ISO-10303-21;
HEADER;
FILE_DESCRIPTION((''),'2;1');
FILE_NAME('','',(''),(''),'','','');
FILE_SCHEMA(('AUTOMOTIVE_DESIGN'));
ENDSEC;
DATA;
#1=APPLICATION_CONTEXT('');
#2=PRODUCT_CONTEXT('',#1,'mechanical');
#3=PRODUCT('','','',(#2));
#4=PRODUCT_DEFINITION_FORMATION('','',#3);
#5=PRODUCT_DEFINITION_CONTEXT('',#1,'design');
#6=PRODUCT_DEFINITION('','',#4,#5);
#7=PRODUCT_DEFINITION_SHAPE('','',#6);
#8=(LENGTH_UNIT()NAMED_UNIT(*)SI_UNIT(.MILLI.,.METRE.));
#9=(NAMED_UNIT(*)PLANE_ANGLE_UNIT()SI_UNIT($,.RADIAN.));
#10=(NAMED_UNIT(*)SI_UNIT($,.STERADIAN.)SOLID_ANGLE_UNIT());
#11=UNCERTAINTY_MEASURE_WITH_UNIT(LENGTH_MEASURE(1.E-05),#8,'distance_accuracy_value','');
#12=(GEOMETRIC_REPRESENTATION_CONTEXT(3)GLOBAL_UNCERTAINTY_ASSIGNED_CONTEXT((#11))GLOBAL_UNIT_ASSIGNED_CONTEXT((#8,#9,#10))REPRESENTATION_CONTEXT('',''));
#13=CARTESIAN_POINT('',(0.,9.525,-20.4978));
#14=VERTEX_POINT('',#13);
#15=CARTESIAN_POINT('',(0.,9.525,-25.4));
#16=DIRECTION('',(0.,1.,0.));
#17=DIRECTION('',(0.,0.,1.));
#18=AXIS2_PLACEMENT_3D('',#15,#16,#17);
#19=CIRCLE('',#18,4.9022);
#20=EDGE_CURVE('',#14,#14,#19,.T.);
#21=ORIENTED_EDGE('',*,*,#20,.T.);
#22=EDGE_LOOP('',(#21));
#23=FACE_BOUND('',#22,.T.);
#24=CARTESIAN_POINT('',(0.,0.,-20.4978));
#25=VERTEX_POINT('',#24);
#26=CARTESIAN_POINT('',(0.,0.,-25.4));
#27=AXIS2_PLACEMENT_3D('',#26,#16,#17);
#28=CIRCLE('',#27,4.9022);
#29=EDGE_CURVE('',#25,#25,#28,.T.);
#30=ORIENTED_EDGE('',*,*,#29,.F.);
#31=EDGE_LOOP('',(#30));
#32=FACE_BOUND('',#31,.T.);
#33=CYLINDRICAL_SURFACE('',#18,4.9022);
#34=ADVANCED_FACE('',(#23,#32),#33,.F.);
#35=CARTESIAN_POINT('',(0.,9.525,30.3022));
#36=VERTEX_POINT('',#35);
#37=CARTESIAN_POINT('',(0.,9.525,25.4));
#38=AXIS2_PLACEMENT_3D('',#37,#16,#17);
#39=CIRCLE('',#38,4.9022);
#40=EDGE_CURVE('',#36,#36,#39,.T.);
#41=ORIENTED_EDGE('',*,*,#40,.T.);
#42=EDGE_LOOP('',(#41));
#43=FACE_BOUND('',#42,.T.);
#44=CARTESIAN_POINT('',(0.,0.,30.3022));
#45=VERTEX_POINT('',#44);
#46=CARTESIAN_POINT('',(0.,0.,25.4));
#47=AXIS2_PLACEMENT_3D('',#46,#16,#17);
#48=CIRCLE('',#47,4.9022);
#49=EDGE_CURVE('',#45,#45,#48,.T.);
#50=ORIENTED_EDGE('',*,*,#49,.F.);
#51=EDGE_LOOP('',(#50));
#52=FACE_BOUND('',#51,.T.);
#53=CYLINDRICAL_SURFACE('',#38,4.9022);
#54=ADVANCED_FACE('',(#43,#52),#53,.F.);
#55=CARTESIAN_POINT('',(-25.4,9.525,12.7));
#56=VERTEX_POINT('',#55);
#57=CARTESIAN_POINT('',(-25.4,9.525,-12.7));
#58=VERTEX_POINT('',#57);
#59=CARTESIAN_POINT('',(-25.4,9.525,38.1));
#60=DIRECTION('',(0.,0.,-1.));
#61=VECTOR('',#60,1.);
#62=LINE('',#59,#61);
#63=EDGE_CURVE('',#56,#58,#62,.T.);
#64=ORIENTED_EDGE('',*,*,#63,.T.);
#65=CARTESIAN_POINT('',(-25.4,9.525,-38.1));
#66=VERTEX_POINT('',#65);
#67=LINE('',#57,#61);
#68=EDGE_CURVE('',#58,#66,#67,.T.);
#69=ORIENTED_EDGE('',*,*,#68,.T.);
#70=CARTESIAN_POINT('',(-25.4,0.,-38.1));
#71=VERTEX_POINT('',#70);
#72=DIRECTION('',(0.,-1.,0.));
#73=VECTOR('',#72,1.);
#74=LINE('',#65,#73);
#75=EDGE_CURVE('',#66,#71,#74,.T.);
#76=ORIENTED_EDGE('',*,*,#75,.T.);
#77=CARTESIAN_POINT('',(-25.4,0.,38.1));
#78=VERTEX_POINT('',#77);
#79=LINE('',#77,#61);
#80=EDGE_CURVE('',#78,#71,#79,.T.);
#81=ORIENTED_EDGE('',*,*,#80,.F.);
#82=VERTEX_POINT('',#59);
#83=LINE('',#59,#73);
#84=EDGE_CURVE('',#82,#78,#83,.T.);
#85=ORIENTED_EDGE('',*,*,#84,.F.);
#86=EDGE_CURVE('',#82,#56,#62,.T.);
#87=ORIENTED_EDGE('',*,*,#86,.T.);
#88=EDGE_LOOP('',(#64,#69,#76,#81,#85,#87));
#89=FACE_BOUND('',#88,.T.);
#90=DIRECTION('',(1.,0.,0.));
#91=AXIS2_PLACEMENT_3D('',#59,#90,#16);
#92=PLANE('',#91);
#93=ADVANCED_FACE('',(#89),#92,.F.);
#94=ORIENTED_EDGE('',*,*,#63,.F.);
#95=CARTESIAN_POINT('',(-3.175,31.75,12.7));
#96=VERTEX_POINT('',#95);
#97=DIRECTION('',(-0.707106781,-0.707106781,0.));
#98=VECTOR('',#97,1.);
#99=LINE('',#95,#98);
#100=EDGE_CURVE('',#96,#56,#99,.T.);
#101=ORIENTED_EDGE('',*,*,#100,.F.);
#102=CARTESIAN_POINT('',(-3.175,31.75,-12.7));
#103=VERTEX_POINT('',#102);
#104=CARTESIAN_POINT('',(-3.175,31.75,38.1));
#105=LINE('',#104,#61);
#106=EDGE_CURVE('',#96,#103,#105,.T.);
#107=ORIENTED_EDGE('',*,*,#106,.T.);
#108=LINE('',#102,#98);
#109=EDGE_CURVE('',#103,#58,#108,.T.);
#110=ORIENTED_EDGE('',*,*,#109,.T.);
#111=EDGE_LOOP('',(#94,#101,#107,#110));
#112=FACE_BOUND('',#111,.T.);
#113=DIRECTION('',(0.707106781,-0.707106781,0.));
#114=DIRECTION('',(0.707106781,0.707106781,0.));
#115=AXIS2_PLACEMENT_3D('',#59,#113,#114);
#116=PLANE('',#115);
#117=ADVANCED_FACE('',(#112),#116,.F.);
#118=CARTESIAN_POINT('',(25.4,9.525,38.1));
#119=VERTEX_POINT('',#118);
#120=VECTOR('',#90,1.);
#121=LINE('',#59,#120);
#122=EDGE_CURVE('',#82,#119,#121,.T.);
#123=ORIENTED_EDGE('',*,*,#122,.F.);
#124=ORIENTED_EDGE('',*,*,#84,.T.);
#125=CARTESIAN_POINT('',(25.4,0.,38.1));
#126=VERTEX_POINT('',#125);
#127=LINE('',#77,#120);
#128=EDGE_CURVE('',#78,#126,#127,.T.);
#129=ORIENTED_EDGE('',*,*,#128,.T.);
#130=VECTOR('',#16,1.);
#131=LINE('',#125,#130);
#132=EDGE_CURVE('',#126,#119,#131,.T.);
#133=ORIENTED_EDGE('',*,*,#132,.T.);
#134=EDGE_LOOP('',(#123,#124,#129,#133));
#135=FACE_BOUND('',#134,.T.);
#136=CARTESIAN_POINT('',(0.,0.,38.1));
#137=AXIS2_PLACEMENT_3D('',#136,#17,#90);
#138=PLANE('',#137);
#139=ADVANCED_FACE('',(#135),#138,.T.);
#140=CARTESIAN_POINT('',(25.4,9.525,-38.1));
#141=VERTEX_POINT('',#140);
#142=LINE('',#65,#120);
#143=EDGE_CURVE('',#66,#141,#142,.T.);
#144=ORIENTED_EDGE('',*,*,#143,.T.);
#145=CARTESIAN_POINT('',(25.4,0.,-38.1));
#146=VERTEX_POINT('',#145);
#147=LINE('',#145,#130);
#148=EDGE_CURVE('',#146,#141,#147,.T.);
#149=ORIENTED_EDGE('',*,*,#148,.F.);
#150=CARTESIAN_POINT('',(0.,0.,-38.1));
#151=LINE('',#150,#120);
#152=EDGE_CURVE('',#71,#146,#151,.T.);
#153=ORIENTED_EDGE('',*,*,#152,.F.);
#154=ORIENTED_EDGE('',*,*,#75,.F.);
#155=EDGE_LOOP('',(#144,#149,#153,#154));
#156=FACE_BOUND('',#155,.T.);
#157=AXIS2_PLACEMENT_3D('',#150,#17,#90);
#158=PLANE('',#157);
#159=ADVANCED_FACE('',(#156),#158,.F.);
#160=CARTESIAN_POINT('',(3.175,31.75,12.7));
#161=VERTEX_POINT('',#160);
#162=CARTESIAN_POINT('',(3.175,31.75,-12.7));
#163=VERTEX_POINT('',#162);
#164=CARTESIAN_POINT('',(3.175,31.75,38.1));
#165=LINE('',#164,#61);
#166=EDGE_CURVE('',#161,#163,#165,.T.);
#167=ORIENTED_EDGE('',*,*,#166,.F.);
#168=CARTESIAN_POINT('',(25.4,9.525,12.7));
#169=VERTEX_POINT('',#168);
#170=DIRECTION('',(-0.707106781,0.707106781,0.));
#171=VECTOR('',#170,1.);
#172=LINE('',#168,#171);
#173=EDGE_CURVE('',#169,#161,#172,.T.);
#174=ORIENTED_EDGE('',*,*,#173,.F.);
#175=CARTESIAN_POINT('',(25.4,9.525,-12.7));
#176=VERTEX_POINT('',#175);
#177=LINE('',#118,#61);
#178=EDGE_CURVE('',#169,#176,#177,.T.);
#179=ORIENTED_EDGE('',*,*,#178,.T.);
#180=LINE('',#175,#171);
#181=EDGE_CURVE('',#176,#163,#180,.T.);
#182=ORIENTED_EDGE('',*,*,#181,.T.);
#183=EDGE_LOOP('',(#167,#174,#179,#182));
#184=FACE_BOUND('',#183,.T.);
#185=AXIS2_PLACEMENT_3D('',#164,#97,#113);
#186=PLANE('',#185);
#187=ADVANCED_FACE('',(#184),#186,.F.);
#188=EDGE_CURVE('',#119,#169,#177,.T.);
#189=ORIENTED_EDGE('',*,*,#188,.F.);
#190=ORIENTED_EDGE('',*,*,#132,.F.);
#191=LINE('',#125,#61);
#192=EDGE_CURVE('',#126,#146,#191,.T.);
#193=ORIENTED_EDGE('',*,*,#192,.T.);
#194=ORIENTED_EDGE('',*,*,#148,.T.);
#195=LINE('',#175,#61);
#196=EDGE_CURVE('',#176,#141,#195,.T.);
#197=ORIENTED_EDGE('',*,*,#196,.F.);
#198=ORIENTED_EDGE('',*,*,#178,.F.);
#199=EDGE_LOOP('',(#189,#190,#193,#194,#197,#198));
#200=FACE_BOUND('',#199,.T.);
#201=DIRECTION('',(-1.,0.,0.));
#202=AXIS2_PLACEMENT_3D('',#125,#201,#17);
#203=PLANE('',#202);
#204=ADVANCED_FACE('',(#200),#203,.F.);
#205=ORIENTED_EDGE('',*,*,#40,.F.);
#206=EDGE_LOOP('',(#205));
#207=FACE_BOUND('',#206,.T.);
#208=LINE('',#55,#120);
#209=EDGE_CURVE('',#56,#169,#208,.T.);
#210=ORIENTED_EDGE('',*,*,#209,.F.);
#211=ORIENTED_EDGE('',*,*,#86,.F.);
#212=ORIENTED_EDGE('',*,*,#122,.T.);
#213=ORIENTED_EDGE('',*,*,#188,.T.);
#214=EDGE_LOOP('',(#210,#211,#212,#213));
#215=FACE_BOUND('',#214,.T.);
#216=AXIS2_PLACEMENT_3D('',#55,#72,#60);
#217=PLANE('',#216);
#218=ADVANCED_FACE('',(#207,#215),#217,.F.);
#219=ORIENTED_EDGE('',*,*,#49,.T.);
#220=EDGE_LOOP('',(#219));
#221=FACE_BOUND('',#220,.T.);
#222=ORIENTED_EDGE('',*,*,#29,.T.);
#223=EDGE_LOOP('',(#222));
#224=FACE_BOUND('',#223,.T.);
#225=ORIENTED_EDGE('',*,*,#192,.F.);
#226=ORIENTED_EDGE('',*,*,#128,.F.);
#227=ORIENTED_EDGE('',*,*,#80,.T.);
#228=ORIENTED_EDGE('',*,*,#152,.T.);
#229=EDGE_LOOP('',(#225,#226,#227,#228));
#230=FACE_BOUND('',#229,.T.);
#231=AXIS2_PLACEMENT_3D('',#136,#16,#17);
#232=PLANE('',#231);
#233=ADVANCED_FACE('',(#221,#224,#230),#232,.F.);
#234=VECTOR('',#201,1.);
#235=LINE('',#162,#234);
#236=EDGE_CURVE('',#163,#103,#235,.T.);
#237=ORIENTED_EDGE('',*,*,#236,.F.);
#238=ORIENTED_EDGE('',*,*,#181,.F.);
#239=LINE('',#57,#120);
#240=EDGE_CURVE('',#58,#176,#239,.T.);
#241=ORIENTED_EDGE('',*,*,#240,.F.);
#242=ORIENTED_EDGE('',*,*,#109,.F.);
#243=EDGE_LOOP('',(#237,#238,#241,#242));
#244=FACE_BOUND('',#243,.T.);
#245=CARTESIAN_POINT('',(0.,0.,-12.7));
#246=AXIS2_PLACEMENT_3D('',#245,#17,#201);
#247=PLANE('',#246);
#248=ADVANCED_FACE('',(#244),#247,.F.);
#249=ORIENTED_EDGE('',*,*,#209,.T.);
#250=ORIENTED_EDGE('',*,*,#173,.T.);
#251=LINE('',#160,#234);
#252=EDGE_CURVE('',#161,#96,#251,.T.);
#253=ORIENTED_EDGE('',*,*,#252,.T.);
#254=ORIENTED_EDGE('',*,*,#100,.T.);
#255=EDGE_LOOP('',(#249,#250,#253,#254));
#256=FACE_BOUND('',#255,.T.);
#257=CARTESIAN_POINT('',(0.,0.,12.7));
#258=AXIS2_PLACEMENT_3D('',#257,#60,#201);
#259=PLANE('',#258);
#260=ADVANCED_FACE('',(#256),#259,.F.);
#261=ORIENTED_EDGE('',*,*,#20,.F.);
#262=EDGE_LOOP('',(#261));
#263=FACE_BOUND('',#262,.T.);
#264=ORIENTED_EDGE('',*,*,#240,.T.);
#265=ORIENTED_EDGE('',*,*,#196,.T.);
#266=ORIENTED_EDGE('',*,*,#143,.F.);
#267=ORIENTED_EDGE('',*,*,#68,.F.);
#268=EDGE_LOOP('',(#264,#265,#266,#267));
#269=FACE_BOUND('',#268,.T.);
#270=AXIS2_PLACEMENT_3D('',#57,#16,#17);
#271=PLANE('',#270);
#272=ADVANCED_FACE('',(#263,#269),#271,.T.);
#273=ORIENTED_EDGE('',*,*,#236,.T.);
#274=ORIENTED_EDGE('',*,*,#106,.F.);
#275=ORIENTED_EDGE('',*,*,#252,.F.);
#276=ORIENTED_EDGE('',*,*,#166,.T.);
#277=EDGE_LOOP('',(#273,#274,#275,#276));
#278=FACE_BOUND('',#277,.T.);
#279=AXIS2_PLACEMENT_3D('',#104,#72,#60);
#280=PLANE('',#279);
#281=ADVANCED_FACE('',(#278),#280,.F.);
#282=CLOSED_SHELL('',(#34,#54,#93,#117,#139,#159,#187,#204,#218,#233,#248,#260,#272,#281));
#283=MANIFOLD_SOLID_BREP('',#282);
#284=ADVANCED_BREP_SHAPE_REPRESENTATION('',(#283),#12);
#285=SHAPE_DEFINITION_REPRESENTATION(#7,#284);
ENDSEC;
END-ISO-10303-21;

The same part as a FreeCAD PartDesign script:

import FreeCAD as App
import Part
import Sketcher

V = App.Vector
Q = App.Units.Quantity


def add_polygon(sketch, points):
    """Adds a closed chain of lines whose ends are joined by coincident constraints."""
    first, n = sketch.GeometryCount, len(points)
    for a, b in zip(points, points[1:] + points[:1]):
        sketch.addGeometry(Part.LineSegment(App.Vector(*a, 0), App.Vector(*b, 0)), False)
    for i in range(n):
        sketch.addConstraint(Sketcher.Constraint("Coincident", first + i, 2, first + (i + 1) % n, 1))

doc = App.newDocument("Part")
body = doc.addObject("PartDesign::Body", "Body")

# Sketch on XY plane
sketch1 = body.newObject("Sketcher::SketchObject", "Sketch")
sketch1.AttachmentSupport = (doc.getObject("XY_Plane"), [""])
sketch1.MapMode = "FlatFace"
add_polygon(sketch1, [(25, 0), (25, 10), (3, 32), (-3, 32), (-25, 10), (-25, 0)])  # lines 0-5
sketch1.addConstraint([
    Sketcher.Constraint("Vertical", 0),
    Sketcher.Constraint("Horizontal", 2),
    Sketcher.Constraint("Vertical", 4),
    Sketcher.Constraint("Horizontal", 5),
    Sketcher.Constraint("Symmetric", 4, 2, 5, 2, -1, 1),
    Sketcher.Constraint("Perpendicular", 1, 3),
    Sketcher.Constraint("Horizontal", 0, 2, 3, 2),
    Sketcher.Constraint("Equal", 1, 3),
    Sketcher.Constraint("DistanceX", 5, 1, 5, 2, Q("2 in")),
    Sketcher.Constraint("DistanceX", 2, 2, 2, 1, Q("0.25 in")),
    Sketcher.Constraint("DistanceY", 0, 1, 0, 2, Q("0.375 in")),
])
pad1 = body.newObject("PartDesign::Pad", "Pad")
pad1.Profile = sketch1
pad1.Length = Q("3 in")
pad1.Midplane = True

# Sketch on XY plane
sketch2 = body.newObject("Sketcher::SketchObject", "Sketch001")
sketch2.AttachmentSupport = (doc.getObject("XY_Plane"), [""])
sketch2.MapMode = "FlatFace"
sketch2.AttachmentOffset = App.Placement(V(0, 0, 1.5 * 25.4), App.Rotation())
add_polygon(sketch2, [(-25, 10), (25, 10), (3, 32), (-3, 32)])  # lines 0-3
sketch2.addConstraint([
    Sketcher.Constraint("Horizontal", 0),
    Sketcher.Constraint("Horizontal", 2),
    Sketcher.Constraint("Perpendicular", 1, 3),
    Sketcher.Constraint("Equal", 1, 3),
    Sketcher.Constraint("DistanceX", 0, 1, 0, 2, Q("2 in")),
    Sketcher.Constraint("DistanceX", -1, 1, 0, 2, Q("1 in")),
    Sketcher.Constraint("DistanceX", 2, 2, 2, 1, Q("0.25 in")),
    Sketcher.Constraint("DistanceY", -1, 1, 1, 2, Q("1.25 in")),
])
pocket1 = body.newObject("PartDesign::Pocket", "Pocket")
pocket1.Profile = sketch2
pocket1.Length = Q("1 in")

# Sketch on XZ plane
sketch3 = body.newObject("Sketcher::SketchObject", "Sketch002")
sketch3.AttachmentSupport = (doc.getObject("XZ_Plane"), [""])
sketch3.MapMode = "FlatFace"
sketch3.AttachmentOffset = App.Placement(V(0, 0, -0.375 * 25.4), App.Rotation())
sketch3.addGeometry(Part.Circle(V(0, 25.4, 0), V(0, 0, 1), 4.9), False)
sketch3.addConstraint([
    Sketcher.Constraint("PointOnObject", 0, 3, -2),
    Sketcher.Constraint("Diameter", 0, Q("0.386 in")),
    Sketcher.Constraint("DistanceY", -1, 1, 0, 3, Q("1 in")),
])
doc.recompute()
hole = body.newObject("PartDesign::Hole", "Hole")
hole.Profile = sketch3
hole.ThreadType = "None"
hole.Diameter = Q("0.386 in")
hole.DepthType = "ThroughAll"
hole.Reversed = True
doc.recompute()

mirrored = body.newObject("PartDesign::Mirrored", "Mirrored")
mirrored.Originals = [pocket1, hole]
mirrored.MirrorPlane = (doc.getObject("XY_Plane"), [""])
body.Tip = mirrored

doc.recompute()
